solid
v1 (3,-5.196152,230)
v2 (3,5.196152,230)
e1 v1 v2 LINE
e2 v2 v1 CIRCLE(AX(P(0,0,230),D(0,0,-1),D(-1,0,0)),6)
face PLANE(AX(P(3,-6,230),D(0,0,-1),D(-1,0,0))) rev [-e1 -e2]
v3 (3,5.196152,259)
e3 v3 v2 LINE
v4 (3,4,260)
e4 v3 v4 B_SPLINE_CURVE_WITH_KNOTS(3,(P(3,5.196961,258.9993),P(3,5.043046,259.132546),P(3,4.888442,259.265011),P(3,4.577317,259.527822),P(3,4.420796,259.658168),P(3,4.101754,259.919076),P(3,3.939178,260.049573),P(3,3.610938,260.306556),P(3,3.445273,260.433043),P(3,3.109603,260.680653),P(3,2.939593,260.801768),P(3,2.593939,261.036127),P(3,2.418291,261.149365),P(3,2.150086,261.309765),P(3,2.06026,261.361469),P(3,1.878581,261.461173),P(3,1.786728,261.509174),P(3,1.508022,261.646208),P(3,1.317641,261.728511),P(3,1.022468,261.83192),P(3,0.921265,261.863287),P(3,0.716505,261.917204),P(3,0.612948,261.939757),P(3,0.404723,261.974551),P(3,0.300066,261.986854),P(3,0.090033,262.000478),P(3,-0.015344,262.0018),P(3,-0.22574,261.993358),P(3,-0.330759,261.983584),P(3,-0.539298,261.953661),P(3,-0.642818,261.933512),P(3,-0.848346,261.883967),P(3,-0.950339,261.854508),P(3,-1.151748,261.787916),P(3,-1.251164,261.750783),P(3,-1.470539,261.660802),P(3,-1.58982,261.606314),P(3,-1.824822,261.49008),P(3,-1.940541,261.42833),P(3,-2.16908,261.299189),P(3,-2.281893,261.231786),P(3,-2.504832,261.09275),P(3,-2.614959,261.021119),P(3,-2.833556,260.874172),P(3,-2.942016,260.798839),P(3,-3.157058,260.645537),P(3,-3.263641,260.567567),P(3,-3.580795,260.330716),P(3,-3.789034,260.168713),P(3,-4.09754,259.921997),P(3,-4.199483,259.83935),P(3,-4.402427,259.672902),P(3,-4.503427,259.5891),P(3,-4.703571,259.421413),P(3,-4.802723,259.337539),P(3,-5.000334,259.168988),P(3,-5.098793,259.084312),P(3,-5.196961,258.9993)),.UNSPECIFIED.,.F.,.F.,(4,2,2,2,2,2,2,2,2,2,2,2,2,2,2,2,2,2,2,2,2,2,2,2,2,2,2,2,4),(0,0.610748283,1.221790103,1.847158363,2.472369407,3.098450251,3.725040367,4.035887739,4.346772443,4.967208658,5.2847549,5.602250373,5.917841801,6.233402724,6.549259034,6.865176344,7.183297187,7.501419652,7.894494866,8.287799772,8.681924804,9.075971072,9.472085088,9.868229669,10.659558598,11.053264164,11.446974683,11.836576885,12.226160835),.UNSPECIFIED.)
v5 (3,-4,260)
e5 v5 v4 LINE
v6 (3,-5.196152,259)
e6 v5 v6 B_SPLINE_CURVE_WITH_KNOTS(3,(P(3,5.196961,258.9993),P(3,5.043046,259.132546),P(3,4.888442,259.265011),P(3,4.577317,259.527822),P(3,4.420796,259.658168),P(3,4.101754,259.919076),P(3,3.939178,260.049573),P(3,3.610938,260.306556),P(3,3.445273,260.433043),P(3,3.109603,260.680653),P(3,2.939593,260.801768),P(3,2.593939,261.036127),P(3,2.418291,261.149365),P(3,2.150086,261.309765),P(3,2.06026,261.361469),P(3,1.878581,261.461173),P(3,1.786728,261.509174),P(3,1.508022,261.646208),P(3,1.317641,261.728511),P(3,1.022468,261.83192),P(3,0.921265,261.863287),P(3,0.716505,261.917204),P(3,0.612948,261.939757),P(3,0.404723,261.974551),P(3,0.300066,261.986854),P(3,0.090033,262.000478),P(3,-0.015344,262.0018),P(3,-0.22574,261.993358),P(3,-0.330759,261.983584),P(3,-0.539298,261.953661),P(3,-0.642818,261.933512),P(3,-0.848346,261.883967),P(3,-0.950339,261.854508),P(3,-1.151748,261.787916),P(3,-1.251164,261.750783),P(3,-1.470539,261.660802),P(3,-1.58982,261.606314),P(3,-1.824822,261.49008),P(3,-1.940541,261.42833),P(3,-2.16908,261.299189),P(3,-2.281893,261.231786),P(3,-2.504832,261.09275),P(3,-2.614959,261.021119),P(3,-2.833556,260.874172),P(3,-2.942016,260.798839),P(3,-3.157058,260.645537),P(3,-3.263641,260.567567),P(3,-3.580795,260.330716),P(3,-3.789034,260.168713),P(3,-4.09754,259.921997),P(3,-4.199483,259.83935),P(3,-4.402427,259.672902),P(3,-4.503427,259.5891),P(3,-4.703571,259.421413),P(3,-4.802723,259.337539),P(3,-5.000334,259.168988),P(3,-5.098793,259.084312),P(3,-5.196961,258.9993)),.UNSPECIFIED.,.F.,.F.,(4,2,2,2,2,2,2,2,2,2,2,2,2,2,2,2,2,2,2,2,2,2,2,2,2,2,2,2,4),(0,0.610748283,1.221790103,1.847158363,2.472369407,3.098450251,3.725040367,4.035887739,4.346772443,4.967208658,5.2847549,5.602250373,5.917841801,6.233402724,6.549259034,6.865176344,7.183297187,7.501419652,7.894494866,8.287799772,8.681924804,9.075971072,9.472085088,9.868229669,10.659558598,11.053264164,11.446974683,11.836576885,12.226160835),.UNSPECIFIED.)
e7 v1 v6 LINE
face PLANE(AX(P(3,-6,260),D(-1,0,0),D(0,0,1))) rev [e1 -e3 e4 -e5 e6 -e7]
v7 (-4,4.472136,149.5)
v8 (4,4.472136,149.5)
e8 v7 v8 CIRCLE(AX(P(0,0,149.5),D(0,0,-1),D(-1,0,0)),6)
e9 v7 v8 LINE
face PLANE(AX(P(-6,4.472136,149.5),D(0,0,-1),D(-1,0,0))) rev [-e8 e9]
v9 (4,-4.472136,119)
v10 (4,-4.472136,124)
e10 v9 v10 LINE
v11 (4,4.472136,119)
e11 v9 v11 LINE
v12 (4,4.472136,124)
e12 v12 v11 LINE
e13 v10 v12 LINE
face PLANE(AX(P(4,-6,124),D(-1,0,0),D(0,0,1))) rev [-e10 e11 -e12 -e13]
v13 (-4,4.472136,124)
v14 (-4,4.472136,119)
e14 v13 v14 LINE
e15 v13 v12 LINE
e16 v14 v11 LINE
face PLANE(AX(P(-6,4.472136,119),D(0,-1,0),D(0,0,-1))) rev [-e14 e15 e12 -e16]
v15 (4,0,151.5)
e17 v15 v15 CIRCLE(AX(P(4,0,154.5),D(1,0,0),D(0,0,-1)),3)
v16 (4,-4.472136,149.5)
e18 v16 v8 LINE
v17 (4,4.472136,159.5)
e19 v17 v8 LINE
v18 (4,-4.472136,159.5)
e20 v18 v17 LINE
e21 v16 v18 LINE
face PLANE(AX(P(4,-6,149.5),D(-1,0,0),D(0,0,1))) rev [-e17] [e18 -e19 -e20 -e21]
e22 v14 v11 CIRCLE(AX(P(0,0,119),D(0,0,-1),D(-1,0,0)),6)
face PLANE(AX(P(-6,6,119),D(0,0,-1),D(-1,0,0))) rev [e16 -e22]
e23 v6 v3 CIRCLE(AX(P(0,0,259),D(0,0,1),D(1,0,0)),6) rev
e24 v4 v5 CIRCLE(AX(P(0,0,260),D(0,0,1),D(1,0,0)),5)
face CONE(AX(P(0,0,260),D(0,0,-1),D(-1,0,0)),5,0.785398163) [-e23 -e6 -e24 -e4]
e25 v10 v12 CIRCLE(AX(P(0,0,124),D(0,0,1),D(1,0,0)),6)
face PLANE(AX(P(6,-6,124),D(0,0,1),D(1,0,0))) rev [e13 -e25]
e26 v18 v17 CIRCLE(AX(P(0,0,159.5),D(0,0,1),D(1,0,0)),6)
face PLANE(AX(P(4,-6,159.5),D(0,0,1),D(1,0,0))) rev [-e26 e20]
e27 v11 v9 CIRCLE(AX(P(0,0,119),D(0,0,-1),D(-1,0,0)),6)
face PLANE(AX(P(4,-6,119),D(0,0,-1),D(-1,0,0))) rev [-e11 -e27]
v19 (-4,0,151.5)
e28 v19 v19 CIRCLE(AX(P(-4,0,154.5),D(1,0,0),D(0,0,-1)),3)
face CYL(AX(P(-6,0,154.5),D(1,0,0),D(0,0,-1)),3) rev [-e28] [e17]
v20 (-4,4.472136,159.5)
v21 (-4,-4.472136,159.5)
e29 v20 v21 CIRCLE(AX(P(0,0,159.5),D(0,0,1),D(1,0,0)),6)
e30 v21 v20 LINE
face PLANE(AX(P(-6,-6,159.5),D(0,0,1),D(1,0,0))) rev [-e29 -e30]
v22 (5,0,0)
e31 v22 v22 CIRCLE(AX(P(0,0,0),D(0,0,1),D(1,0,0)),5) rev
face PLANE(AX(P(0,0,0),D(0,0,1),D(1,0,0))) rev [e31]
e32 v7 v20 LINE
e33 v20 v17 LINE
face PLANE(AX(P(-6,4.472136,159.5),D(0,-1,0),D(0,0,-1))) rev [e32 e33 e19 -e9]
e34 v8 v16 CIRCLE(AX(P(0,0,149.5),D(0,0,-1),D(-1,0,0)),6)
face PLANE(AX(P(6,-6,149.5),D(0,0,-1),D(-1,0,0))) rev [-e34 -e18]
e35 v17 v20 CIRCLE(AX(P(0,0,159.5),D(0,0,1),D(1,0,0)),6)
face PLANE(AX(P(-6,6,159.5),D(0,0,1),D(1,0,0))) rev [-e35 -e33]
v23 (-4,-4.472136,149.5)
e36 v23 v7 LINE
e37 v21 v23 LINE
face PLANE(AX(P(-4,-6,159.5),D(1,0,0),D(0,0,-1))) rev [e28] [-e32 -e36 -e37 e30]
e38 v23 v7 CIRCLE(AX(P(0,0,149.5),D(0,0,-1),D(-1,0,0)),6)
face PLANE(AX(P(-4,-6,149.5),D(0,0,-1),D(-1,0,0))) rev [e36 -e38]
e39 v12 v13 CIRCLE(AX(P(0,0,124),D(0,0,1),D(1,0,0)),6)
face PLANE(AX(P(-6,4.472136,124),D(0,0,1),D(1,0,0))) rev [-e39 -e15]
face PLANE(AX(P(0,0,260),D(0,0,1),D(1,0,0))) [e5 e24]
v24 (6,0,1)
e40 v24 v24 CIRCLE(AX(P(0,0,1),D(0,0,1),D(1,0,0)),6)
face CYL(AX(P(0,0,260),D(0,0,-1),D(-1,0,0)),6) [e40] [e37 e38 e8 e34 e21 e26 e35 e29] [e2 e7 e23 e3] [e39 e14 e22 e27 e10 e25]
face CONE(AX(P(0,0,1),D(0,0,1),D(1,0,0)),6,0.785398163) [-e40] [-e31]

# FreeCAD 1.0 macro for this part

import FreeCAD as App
import Part
import Sketcher

V = App.Vector
Q = App.Units.Quantity


def edges_at(feature, points):
    """Names of the edges that pass closest to the given points."""
    edges = feature.Shape.Edges
    near = lambda p: min(range(len(edges)), key=lambda i: edges[i].distToShape(Part.Vertex(*p))[0])
    return sorted({f"Edge{near(p) + 1}" for p in points})

doc = App.newDocument("Part")
body = doc.addObject("PartDesign::Body", "Body")

sketch1 = body.newObject("Sketcher::SketchObject", "Sketch")
sketch1.AttachmentSupport = (doc.getObject("XY_Plane"), [""])
sketch1.MapMode = "FlatFace"
sketch1.addGeometry(Part.Circle(V(0, 0, 0), V(0, 0, 1), 6), False)
sketch1.addConstraint(Sketcher.Constraint("Coincident", 0, 3, -1, 1))
sketch1.addConstraint(Sketcher.Constraint("Diameter", 0, Q("12 mm")))
pad1 = body.newObject("PartDesign::Pad", "Pad")
pad1.Profile = sketch1
pad1.Length = 260
doc.recompute()

chamfer = body.newObject("PartDesign::Chamfer", "Chamfer")
chamfer.Base = (pad1, edges_at(pad1, [(-6, 0, 0), (-6, 0, 260)]))
chamfer.Size = 1

sketch2 = body.newObject("Sketcher::SketchObject", "Sketch001")
sketch2.AttachmentSupport = (doc.getObject("XZ_Plane"), [""])
sketch2.MapMode = "FlatFace"
sketch2.addGeometry(Part.LineSegment(V(3, 230, 0), V(3, 260, 0)), False)
sketch2.addGeometry(Part.LineSegment(V(3, 260, 0), V(6, 260, 0)), False)
sketch2.addGeometry(Part.LineSegment(V(6, 260, 0), V(6, 230, 0)), False)
sketch2.addGeometry(Part.LineSegment(V(6, 230, 0), V(3, 230, 0)), False)
sketch2.addGeometry(Part.LineSegment(V(4, 149.5, 0), V(4, 159.5, 0)), False)
sketch2.addGeometry(Part.LineSegment(V(4, 159.5, 0), V(6, 159.5, 0)), False)
sketch2.addGeometry(Part.LineSegment(V(6, 159.5, 0), V(6, 149.5, 0)), False)
sketch2.addGeometry(Part.LineSegment(V(6, 149.5, 0), V(4, 149.5, 0)), False)
sketch2.addGeometry(Part.LineSegment(V(-6, 149.5, 0), V(-6, 159.5, 0)), False)
sketch2.addGeometry(Part.LineSegment(V(-6, 159.5, 0), V(-4, 159.5, 0)), False)
sketch2.addGeometry(Part.LineSegment(V(-4, 159.5, 0), V(-4, 149.5, 0)), False)
sketch2.addGeometry(Part.LineSegment(V(-4, 149.5, 0), V(-6, 149.5, 0)), False)
sketch2.addGeometry(Part.LineSegment(V(4, 119, 0), V(4, 124, 0)), False)
sketch2.addGeometry(Part.LineSegment(V(4, 124, 0), V(6, 124, 0)), False)
sketch2.addGeometry(Part.LineSegment(V(6, 124, 0), V(6, 119, 0)), False)
sketch2.addGeometry(Part.LineSegment(V(6, 119, 0), V(4, 119, 0)), False)
sketch2.addConstraint(Sketcher.Constraint("Coincident", 0, 2, 1, 1))
sketch2.addConstraint(Sketcher.Constraint("Coincident", 1, 2, 2, 1))
sketch2.addConstraint(Sketcher.Constraint("Coincident", 2, 2, 3, 1))
sketch2.addConstraint(Sketcher.Constraint("Coincident", 3, 2, 0, 1))
sketch2.addConstraint(Sketcher.Constraint("Coincident", 4, 2, 5, 1))
sketch2.addConstraint(Sketcher.Constraint("Coincident", 5, 2, 6, 1))
sketch2.addConstraint(Sketcher.Constraint("Coincident", 6, 2, 7, 1))
sketch2.addConstraint(Sketcher.Constraint("Coincident", 7, 2, 4, 1))
sketch2.addConstraint(Sketcher.Constraint("Coincident", 8, 2, 9, 1))
sketch2.addConstraint(Sketcher.Constraint("Coincident", 9, 2, 10, 1))
sketch2.addConstraint(Sketcher.Constraint("Coincident", 10, 2, 11, 1))
sketch2.addConstraint(Sketcher.Constraint("Coincident", 11, 2, 8, 1))
sketch2.addConstraint(Sketcher.Constraint("Coincident", 12, 2, 13, 1))
sketch2.addConstraint(Sketcher.Constraint("Coincident", 13, 2, 14, 1))
sketch2.addConstraint(Sketcher.Constraint("Coincident", 14, 2, 15, 1))
sketch2.addConstraint(Sketcher.Constraint("Coincident", 15, 2, 12, 1))
sketch2.addConstraint(Sketcher.Constraint("Vertical", 0))
sketch2.addConstraint(Sketcher.Constraint("Horizontal", 1))
sketch2.addConstraint(Sketcher.Constraint("Vertical", 2))
sketch2.addConstraint(Sketcher.Constraint("Horizontal", 3))
sketch2.addConstraint(Sketcher.Constraint("Vertical", 4))
sketch2.addConstraint(Sketcher.Constraint("Horizontal", 5))
sketch2.addConstraint(Sketcher.Constraint("Vertical", 6))
sketch2.addConstraint(Sketcher.Constraint("Horizontal", 7))
sketch2.addConstraint(Sketcher.Constraint("Vertical", 8))
sketch2.addConstraint(Sketcher.Constraint("Horizontal", 9))
sketch2.addConstraint(Sketcher.Constraint("Vertical", 10))
sketch2.addConstraint(Sketcher.Constraint("Horizontal", 11))
sketch2.addConstraint(Sketcher.Constraint("Vertical", 12))
sketch2.addConstraint(Sketcher.Constraint("Horizontal", 13))
sketch2.addConstraint(Sketcher.Constraint("Vertical", 14))
sketch2.addConstraint(Sketcher.Constraint("Horizontal", 15))
sketch2.addConstraint(Sketcher.Constraint("Symmetric", 5, 2, 8, 2, -2))
sketch2.addConstraint(Sketcher.Constraint("Symmetric", 7, 2, 10, 2, -2))
sketch2.addConstraint(Sketcher.Constraint("Vertical", 2, 2, 5, 2))
sketch2.addConstraint(Sketcher.Constraint("Vertical", 7, 2, 12, 2))
sketch2.addConstraint(Sketcher.Constraint("Vertical", 6, 2, 13, 2))
sketch2.addConstraint(Sketcher.Constraint("DistanceX", 1, 1, 1, 2, Q("3 mm")))
sketch2.addConstraint(Sketcher.Constraint("DistanceX", 5, 1, 5, 2, Q("2 mm")))
sketch2.addConstraint(Sketcher.Constraint("DistanceY", 0, 1, 0, 2, Q("30 mm")))
sketch2.addConstraint(Sketcher.Constraint("DistanceY", 4, 1, 4, 2, Q("10 mm")))
sketch2.addConstraint(Sketcher.Constraint("DistanceY", 12, 1, 12, 2, Q("5 mm")))
sketch2.addConstraint(Sketcher.Constraint("DistanceX", -1, 1, 0, 2, Q("3 mm")))
sketch2.addConstraint(Sketcher.Constraint("DistanceY", -1, 1, 0, 2, Q("260 mm")))
sketch2.addConstraint(Sketcher.Constraint("DistanceY", -1, 1, 12, 2, Q("124 mm")))
sketch2.addConstraint(Sketcher.Constraint("DistanceY", -1, 1, 4, 2, Q("159.5 mm")))
pocket1 = body.newObject("PartDesign::Pocket", "Pocket")
pocket1.Profile = sketch2
pocket1.Type = "ThroughAll"
pocket1.Midplane = True

sketch3 = body.newObject("Sketcher::SketchObject", "Sketch002")
sketch3.AttachmentSupport = (doc.getObject("YZ_Plane"), [""])
sketch3.MapMode = "FlatFace"
sketch3.AttachmentOffset = App.Placement(V(0, 0, 4), App.Rotation())
sketch3.addGeometry(Part.Circle(V(0, 154.5, 0), V(0, 0, 1), 3), False)
sketch3.addConstraint(Sketcher.Constraint("PointOnObject", 0, 3, -2))
sketch3.addConstraint(Sketcher.Constraint("Diameter", 0, Q("6 mm")))
sketch3.addConstraint(Sketcher.Constraint("DistanceY", -1, 1, 0, 3, Q("154.5 mm")))
pocket2 = body.newObject("PartDesign::Pocket", "Pocket001")
pocket2.Profile = sketch3
pocket2.Type = "ThroughAll"
pocket2.Midplane = True

sketch4 = body.newObject("Sketcher::SketchObject", "Sketch003")
sketch4.AttachmentSupport = (doc.getObject("YZ_Plane"), [""])
sketch4.MapMode = "FlatFace"
sketch4.addGeometry(Part.LineSegment(V(6, 159.5, 0), V(4.5, 159.5, 0)), False)
sketch4.addGeometry(Part.LineSegment(V(4.5, 159.5, 0), V(4.5, 149.5, 0)), False)
sketch4.addGeometry(Part.LineSegment(V(4.5, 149.5, 0), V(6, 149.5, 0)), False)
sketch4.addGeometry(Part.LineSegment(V(6, 149.5, 0), V(6, 159.5, 0)), False)
sketch4.addGeometry(Part.LineSegment(V(6, 124, 0), V(4.5, 124, 0)), False)
sketch4.addGeometry(Part.LineSegment(V(4.5, 124, 0), V(4.5, 119, 0)), False)
sketch4.addGeometry(Part.LineSegment(V(4.5, 119, 0), V(6, 119, 0)), False)
sketch4.addGeometry(Part.LineSegment(V(6, 119, 0), V(6, 124, 0)), False)
sketch4.addConstraint(Sketcher.Constraint("Coincident", 0, 2, 1, 1))
sketch4.addConstraint(Sketcher.Constraint("Coincident", 1, 2, 2, 1))
sketch4.addConstraint(Sketcher.Constraint("Coincident", 2, 2, 3, 1))
sketch4.addConstraint(Sketcher.Constraint("Coincident", 3, 2, 0, 1))
sketch4.addConstraint(Sketcher.Constraint("Coincident", 4, 2, 5, 1))
sketch4.addConstraint(Sketcher.Constraint("Coincident", 5, 2, 6, 1))
sketch4.addConstraint(Sketcher.Constraint("Coincident", 6, 2, 7, 1))
sketch4.addConstraint(Sketcher.Constraint("Coincident", 7, 2, 4, 1))
sketch4.addConstraint(Sketcher.Constraint("Horizontal", 0))
sketch4.addConstraint(Sketcher.Constraint("Vertical", 1))
sketch4.addConstraint(Sketcher.Constraint("Horizontal", 2))
sketch4.addConstraint(Sketcher.Constraint("Vertical", 3))
sketch4.addConstraint(Sketcher.Constraint("Horizontal", 4))
sketch4.addConstraint(Sketcher.Constraint("Vertical", 5))
sketch4.addConstraint(Sketcher.Constraint("Horizontal", 6))
sketch4.addConstraint(Sketcher.Constraint("Vertical", 7))
sketch4.addConstraint(Sketcher.Constraint("Vertical", 1, 2, 4, 2))
sketch4.addConstraint(Sketcher.Constraint("Vertical", 3, 2, 6, 2))
sketch4.addConstraint(Sketcher.Constraint("DistanceY", 1, 2, 1, 1, Q("10 mm")))
sketch4.addConstraint(Sketcher.Constraint("DistanceY", 5, 2, 5, 1, Q("5 mm")))
sketch4.addConstraint(Sketcher.Constraint("DistanceX", -1, 1, 2, 2, Q("6 mm")))
sketch4.addConstraint(Sketcher.Constraint("DistanceY", -1, 1, 4, 2, Q("124 mm")))
sketch4.addConstraint(Sketcher.Constraint("DistanceY", -1, 1, 0, 2, Q("159.5 mm")))
sketch4.addConstraint(Sketcher.Constraint("DistanceX", 0, 2, 0, 1, Q("1.527864 mm")))
pocket3 = body.newObject("PartDesign::Pocket", "Pocket002")
pocket3.Profile = sketch4
pocket3.Type = "ThroughAll"
pocket3.Midplane = True

doc.recompute()
